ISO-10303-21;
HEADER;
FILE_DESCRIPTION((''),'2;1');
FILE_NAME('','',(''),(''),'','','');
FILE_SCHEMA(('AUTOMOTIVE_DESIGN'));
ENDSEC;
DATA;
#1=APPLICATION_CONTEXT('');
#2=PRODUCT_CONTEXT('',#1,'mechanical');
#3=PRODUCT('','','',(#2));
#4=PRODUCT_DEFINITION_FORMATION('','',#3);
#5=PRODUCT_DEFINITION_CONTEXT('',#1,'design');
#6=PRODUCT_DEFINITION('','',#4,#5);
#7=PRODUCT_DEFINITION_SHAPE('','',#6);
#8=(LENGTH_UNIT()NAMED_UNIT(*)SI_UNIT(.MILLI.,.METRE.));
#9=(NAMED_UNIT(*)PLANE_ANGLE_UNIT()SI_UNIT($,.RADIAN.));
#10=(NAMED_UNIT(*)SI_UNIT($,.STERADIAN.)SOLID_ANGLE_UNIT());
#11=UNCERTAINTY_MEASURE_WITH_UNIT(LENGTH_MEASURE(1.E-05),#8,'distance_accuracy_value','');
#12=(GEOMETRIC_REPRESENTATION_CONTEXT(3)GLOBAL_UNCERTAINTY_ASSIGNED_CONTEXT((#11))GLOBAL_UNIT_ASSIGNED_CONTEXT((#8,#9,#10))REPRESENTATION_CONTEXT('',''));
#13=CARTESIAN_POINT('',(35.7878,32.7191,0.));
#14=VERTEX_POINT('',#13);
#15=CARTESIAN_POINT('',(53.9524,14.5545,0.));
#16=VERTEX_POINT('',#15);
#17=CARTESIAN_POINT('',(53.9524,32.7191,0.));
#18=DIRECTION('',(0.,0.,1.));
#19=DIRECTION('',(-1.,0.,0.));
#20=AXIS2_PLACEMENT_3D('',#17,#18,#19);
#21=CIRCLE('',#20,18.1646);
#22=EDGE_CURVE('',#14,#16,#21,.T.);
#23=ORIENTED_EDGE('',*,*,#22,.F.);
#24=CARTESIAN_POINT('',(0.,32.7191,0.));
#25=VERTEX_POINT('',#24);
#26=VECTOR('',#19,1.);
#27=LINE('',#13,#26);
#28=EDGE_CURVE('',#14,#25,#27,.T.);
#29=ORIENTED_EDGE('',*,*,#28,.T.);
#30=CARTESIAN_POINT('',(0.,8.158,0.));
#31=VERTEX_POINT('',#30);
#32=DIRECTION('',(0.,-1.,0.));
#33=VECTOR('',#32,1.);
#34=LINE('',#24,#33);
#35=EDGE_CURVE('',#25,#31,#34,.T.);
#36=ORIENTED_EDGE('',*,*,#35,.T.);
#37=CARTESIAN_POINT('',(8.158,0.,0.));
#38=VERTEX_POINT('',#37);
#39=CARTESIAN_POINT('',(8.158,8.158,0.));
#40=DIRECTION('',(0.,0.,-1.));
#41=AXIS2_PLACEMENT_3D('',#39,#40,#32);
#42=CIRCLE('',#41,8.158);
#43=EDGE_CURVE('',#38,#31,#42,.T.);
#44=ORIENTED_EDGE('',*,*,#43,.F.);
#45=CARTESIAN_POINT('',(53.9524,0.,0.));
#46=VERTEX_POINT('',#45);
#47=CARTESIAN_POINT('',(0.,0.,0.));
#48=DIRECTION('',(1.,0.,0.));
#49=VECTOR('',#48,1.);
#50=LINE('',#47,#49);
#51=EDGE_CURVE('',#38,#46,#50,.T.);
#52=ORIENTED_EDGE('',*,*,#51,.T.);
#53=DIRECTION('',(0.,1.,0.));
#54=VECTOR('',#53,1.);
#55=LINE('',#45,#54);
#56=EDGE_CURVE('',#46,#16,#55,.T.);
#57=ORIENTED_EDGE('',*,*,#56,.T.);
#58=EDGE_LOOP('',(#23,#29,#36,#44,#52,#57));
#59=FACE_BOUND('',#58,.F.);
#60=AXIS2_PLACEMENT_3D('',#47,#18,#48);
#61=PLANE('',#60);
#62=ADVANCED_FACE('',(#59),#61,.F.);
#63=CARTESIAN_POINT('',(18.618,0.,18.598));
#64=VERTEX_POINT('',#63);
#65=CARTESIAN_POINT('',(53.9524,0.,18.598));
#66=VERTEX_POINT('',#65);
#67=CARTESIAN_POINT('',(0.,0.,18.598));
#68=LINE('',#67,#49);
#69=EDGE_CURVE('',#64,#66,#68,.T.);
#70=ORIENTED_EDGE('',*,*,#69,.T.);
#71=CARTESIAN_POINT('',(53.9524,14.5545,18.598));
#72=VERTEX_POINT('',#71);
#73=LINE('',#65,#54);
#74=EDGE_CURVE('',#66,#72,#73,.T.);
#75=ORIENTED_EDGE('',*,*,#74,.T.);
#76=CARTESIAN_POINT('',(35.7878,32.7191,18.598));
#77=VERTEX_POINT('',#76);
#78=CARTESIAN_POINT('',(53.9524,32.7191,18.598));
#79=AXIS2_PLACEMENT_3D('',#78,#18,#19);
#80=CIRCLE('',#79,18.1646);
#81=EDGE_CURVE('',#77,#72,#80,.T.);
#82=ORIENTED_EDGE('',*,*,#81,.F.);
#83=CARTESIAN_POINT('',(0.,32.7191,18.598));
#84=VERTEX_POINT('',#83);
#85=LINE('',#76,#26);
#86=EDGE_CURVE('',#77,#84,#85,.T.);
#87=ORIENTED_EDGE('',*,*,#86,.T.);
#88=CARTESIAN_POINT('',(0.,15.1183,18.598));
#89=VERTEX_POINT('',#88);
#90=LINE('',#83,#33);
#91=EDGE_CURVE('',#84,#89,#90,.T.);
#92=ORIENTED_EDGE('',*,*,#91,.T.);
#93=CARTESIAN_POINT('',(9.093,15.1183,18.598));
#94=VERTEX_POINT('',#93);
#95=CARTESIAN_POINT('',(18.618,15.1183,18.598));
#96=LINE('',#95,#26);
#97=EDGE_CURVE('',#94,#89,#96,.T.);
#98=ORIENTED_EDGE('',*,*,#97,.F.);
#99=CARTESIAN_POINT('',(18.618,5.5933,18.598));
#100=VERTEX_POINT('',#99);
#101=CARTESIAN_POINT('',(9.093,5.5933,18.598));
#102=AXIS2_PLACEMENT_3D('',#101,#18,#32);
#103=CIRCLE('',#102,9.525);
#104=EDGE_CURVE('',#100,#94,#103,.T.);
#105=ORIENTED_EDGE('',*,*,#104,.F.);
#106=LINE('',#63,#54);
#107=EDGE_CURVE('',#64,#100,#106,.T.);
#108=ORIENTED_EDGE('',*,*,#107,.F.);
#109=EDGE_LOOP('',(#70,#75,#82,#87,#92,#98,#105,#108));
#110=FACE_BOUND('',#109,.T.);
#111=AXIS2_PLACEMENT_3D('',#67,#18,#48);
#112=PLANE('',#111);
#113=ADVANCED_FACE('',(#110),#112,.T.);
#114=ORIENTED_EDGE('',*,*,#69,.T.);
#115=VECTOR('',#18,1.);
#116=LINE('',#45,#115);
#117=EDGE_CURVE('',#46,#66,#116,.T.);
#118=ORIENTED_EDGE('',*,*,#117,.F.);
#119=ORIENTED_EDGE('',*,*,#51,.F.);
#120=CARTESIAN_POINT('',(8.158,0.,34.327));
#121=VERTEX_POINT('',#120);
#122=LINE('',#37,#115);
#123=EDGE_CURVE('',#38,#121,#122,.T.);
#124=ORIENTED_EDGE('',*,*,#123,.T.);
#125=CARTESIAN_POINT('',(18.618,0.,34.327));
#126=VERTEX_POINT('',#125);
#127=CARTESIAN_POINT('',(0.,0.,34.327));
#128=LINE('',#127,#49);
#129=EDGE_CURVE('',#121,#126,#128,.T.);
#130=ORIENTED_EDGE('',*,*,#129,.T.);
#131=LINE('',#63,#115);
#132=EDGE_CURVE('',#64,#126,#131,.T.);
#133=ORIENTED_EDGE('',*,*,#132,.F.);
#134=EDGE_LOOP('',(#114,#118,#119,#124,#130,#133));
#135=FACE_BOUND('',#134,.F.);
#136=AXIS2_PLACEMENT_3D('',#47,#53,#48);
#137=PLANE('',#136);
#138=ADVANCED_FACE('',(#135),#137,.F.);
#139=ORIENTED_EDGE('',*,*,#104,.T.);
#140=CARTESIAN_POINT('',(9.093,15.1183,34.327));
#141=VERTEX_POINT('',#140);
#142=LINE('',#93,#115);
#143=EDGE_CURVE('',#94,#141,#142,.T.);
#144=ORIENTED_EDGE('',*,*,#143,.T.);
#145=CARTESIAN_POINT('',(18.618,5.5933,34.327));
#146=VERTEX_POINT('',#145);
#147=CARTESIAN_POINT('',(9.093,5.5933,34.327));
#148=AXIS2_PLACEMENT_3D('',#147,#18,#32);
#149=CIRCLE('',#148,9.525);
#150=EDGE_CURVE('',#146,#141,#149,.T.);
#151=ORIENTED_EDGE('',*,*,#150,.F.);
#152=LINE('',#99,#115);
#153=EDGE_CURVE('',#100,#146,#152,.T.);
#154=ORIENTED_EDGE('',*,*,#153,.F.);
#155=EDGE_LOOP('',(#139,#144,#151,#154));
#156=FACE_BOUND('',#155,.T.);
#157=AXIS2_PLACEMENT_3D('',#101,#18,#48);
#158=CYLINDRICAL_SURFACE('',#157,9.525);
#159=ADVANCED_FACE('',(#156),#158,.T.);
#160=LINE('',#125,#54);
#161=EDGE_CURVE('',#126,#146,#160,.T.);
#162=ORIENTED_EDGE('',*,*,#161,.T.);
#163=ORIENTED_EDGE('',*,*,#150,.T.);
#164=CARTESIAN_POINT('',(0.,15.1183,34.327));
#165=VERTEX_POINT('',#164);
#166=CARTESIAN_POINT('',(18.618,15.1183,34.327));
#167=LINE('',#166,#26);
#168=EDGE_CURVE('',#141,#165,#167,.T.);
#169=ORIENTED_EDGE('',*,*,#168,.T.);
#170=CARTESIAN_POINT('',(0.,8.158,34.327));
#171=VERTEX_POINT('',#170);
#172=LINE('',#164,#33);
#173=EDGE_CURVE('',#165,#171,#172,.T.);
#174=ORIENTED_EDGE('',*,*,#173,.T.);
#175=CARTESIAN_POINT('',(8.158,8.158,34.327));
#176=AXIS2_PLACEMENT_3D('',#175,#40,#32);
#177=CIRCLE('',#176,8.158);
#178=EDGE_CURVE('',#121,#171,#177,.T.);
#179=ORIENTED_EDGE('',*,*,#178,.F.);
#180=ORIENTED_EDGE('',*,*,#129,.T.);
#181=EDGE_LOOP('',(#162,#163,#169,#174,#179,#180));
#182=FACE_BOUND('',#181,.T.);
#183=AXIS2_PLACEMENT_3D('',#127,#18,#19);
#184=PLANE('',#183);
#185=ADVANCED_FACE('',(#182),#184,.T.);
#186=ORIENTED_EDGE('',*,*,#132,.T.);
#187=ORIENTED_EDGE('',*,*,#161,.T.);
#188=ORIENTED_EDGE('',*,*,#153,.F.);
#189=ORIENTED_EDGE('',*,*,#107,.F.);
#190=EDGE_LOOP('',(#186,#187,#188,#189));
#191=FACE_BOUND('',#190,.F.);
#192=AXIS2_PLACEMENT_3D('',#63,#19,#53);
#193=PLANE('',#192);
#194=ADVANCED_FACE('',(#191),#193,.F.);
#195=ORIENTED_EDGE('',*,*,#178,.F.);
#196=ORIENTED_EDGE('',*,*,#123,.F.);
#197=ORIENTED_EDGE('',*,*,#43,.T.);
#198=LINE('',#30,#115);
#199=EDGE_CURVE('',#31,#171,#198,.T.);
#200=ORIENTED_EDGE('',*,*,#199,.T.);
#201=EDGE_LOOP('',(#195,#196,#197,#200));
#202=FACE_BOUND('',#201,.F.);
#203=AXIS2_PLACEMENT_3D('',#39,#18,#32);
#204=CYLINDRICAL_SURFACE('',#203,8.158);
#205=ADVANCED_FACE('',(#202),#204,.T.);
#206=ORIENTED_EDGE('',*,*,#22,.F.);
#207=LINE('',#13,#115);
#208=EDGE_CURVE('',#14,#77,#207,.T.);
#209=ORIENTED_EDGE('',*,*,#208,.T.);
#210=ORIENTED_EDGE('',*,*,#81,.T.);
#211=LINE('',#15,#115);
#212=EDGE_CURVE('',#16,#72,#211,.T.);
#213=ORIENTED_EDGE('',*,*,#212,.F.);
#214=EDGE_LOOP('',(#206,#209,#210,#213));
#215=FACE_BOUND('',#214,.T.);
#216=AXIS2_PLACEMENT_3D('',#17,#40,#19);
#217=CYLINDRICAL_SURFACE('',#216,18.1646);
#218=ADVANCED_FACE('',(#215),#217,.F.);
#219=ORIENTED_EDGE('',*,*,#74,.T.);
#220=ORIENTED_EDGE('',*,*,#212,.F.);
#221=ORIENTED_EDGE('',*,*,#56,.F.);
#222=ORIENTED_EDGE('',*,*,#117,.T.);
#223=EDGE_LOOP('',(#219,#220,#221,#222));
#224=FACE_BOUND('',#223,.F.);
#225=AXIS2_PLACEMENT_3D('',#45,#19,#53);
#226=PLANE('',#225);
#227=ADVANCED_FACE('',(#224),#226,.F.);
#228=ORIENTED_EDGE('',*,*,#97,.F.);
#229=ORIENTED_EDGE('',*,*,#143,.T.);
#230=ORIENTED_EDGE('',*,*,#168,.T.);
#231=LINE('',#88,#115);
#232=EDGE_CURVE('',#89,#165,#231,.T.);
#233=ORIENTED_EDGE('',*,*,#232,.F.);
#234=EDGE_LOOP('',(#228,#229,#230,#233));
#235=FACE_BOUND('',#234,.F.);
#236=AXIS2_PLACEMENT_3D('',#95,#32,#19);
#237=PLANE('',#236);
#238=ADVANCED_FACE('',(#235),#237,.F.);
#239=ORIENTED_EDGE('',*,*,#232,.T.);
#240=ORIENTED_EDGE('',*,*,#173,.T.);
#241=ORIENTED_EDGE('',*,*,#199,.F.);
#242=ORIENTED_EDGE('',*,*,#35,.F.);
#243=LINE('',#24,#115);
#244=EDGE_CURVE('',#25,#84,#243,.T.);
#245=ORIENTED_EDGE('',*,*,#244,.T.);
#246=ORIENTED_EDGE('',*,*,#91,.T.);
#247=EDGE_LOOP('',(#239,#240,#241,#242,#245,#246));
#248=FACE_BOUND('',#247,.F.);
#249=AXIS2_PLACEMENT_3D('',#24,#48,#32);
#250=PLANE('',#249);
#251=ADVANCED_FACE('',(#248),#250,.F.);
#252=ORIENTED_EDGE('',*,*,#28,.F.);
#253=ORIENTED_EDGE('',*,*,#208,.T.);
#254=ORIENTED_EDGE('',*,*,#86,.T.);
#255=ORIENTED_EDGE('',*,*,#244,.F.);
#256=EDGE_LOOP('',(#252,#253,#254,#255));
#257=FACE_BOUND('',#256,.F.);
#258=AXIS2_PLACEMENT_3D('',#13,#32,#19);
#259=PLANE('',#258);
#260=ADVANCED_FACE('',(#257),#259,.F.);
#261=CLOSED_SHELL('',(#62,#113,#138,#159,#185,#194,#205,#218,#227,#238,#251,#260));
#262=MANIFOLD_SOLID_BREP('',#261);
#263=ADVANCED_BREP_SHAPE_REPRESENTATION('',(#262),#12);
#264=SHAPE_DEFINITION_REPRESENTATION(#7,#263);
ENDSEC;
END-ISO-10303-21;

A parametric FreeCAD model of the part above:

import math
import FreeCAD as App
import Part
import Sketcher
Q = App.Units.Quantity


def edges_at(feature, points):
    """Names of the edges that pass closest to the given points."""
    edges = feature.Shape.Edges
    near = lambda p: min(range(len(edges)), key=lambda i: edges[i].distToShape(Part.Vertex(*p))[0])
    return sorted({f"Edge{near(p) + 1}" for p in points})

doc = App.newDocument("Part")
body = doc.addObject("PartDesign::Body", "Body")

# Sketch on XY plane
sketch1 = body.newObject("Sketcher::SketchObject", "Sketch")
sketch1.AttachmentSupport = (doc.getObject("XY_Plane"), [""])
sketch1.MapMode = "FlatFace"
sketch1.addGeometry([
    Part.LineSegment(App.Vector(0, 33, 0), App.Vector(0, 0, 0)),  # 0
    Part.LineSegment(App.Vector(0, 0, 0), App.Vector(54, 0, 0)),  # 1
    Part.LineSegment(App.Vector(54, 0, 0), App.Vector(54, 15, 0)),  # 2
    Part.ArcOfCircle(Part.Circle(App.Vector(54, 33, 0), App.Vector(0, 0, 1), 18), math.radians(180), math.radians(270)),  # 3
    Part.LineSegment(App.Vector(36, 33, 0), App.Vector(0, 33, 0)),  # 4
], False)
sketch1.addConstraint([
    Sketcher.Constraint("Coincident", 0, 2, 1, 1),
    Sketcher.Constraint("Coincident", 1, 2, 2, 1),
    Sketcher.Constraint("Coincident", 2, 2, 3, 2),
    Sketcher.Constraint("Coincident", 3, 1, 4, 1),
    Sketcher.Constraint("Coincident", 4, 2, 0, 1),
    Sketcher.Constraint("Vertical", 0),
    Sketcher.Constraint("Horizontal", 1),
    Sketcher.Constraint("Vertical", 2),
    Sketcher.Constraint("Horizontal", 4),
    Sketcher.Constraint("Coincident", 0, 2, -1, 1),
    Sketcher.Constraint("Vertical", 3, 3, 1, 2),
    Sketcher.Constraint("DistanceY", 2, 1, 2, 2, Q("0.573 in")),
    Sketcher.Constraint("Radius", 3, 18.1646),
    Sketcher.Constraint("DistanceX", 1, 1, 1, 2, Q("2.1241 in")),
    Sketcher.Constraint("DistanceY", 0, 2, 0, 1, 32.719),
])
pad1 = body.newObject("PartDesign::Pad", "Pad")
pad1.Profile = sketch1
pad1.Length = Q("0.7322047 in")

# Sketch on XY plane
sketch2 = body.newObject("Sketcher::SketchObject", "Sketch001")
sketch2.AttachmentSupport = (doc.getObject("XY_Plane"), [""])
sketch2.MapMode = "FlatFace"
sketch2.AttachmentOffset = App.Placement(App.Vector(0, 0, 0.7322047 * 25.4), App.Rotation())
sketch2.addGeometry([
    Part.LineSegment(App.Vector(0, 15, 0), App.Vector(0, 0, 0)),
    Part.LineSegment(App.Vector(0, 0, 0), App.Vector(19, 0, 0)),
    Part.LineSegment(App.Vector(19, 0, 0), App.Vector(19, 15, 0)),
    Part.LineSegment(App.Vector(19, 15, 0), App.Vector(0, 15, 0)),
], False)
sketch2.addConstraint([
    Sketcher.Constraint("Coincident", 0, 2, 1, 1),
    Sketcher.Constraint("Coincident", 1, 2, 2, 1),
    Sketcher.Constraint("Coincident", 2, 2, 3, 1),
    Sketcher.Constraint("Coincident", 3, 2, 0, 1),
    Sketcher.Constraint("Vertical", 0),
    Sketcher.Constraint("Horizontal", 1),
    Sketcher.Constraint("Vertical", 2),
    Sketcher.Constraint("Horizontal", 3),
    Sketcher.Constraint("Coincident", 0, 2, -1, 1),
    Sketcher.Constraint("DistanceX", 1, 1, 1, 2, Q("0.733 in")),
    Sketcher.Constraint("DistanceY", 0, 2, 0, 1, Q("0.5952 in")),
])
pad2 = body.newObject("PartDesign::Pad", "Pad001")
pad2.Profile = sketch2
pad2.Length = 15.729
doc.recompute()

fillet = body.newObject("PartDesign::Fillet", "Fillet")
fillet.Base = (pad2, edges_at(pad2, [(18.618, 15.118, 26.462)]))
fillet.Radius = Q("0.375 in")
doc.recompute()

fillet2 = body.newObject("PartDesign::Fillet", "Fillet001")
fillet2.Base = (fillet, edges_at(fillet, [(0, 0, 17.163)]))
fillet2.Radius = 8.158

doc.recompute()
